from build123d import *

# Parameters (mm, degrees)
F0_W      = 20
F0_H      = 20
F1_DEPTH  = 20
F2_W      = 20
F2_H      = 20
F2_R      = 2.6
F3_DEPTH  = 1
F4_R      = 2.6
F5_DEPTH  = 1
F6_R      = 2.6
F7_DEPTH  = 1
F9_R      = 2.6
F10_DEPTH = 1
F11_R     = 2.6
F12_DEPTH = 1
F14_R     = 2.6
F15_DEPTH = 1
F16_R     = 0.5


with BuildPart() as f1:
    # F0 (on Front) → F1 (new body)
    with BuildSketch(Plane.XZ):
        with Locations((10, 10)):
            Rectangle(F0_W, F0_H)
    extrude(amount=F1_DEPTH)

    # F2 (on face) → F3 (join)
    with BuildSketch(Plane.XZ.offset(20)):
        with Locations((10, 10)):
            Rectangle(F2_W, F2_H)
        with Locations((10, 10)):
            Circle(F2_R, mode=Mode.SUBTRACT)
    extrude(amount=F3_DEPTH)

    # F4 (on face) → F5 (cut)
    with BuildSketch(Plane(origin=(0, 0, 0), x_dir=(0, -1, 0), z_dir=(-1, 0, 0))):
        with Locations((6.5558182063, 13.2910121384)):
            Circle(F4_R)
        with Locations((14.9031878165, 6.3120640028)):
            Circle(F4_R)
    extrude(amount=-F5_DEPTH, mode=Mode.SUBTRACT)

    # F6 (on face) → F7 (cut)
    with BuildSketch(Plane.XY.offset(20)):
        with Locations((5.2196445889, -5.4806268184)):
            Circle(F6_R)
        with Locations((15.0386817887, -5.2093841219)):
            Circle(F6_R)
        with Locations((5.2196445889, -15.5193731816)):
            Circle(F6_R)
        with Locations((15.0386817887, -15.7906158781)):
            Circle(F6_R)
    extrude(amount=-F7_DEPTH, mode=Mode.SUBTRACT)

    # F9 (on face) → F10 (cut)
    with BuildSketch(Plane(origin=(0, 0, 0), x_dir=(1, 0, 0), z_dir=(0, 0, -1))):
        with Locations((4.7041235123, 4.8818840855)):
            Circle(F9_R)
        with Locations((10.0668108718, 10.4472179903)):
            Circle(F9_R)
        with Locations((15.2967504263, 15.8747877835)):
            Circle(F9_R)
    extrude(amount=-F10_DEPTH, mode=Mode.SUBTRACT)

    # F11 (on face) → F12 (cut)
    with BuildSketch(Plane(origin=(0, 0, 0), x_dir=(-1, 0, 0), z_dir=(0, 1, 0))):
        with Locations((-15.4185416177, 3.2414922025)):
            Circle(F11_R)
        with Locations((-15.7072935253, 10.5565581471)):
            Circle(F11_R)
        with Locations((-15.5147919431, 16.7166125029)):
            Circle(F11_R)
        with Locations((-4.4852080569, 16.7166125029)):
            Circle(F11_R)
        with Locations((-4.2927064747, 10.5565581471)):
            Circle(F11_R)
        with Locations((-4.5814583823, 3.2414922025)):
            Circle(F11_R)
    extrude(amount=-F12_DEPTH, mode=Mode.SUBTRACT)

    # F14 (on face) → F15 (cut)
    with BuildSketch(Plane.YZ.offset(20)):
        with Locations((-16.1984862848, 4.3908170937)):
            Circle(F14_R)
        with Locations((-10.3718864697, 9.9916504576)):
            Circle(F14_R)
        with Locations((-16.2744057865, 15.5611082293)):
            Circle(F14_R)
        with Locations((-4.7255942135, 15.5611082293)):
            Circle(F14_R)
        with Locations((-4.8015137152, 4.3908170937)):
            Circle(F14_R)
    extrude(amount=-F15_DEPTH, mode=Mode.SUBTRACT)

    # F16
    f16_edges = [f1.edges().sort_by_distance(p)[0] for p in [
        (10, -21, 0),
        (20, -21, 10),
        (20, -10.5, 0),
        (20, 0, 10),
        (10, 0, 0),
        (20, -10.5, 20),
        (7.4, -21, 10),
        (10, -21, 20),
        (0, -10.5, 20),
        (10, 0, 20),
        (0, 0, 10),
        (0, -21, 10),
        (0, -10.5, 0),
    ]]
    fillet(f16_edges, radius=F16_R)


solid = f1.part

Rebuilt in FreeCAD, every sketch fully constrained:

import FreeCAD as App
import Part
import Sketcher
Q = App.Units.Quantity


def edges_at(feature, points):
    """Names of the edges that pass closest to the given points."""
    edges = feature.Shape.Edges
    near = lambda p: min(range(len(edges)), key=lambda i: edges[i].distToShape(Part.Vertex(*p))[0])
    return sorted({f"Edge{near(p) + 1}" for p in points})


def add_polygon(sketch, points):
    """Adds a closed chain of lines whose ends are joined by coincident constraints."""
    first, n = sketch.GeometryCount, len(points)
    for a, b in zip(points, points[1:] + points[:1]):
        sketch.addGeometry(Part.LineSegment(App.Vector(*a, 0), App.Vector(*b, 0)), False)
    for i in range(n):
        sketch.addConstraint(Sketcher.Constraint("Coincident", first + i, 2, first + (i + 1) % n, 1))

doc = App.newDocument("Part")
body = doc.addObject("PartDesign::Body", "Body")

sketch1 = body.newObject("Sketcher::SketchObject", "Sketch")
sketch1.AttachmentSupport = (doc.getObject("XZ_Plane"), [""])
sketch1.MapMode = "FlatFace"
add_polygon(sketch1, [(0, 20), (0, 0), (20, 0), (20, 20)])
sketch1.addConstraint(Sketcher.Constraint("Vertical", 0))
sketch1.addConstraint(Sketcher.Constraint("Horizontal", 1))
sketch1.addConstraint(Sketcher.Constraint("Vertical", 2))
sketch1.addConstraint(Sketcher.Constraint("Horizontal", 3))
sketch1.addConstraint(Sketcher.Constraint("Coincident", 0, 2, -1, 1))
sketch1.addConstraint(Sketcher.Constraint("Equal", 3, 0))
sketch1.addConstraint(Sketcher.Constraint("DistanceX", 1, 1, 1, 2, Q("20 mm")))
pad1 = body.newObject("PartDesign::Pad", "Pad")
pad1.Profile = sketch1
pad1.Length = 20

sketch2 = body.newObject("Sketcher::SketchObject", "Sketch001")
sketch2.AttachmentSupport = (doc.getObject("XZ_Plane"), [""])
sketch2.MapMode = "FlatFace"
sketch2.AttachmentOffset = App.Placement(App.Vector(0, 0, 20), App.Rotation())
add_polygon(sketch2, [(0, 20), (0, 0), (20, 0), (20, 20)])
sketch2.addGeometry(Part.Circle(App.Vector(10, 10, 0), App.Vector(0, 0, 1), 2.6), False)
sketch2.addConstraint(Sketcher.Constraint("Vertical", 0))
sketch2.addConstraint(Sketcher.Constraint("Horizontal", 1))
sketch2.addConstraint(Sketcher.Constraint("Vertical", 2))
sketch2.addConstraint(Sketcher.Constraint("Horizontal", 3))
sketch2.addConstraint(Sketcher.Constraint("Coincident", 0, 2, -1, 1))
sketch2.addConstraint(Sketcher.Constraint("Equal", 3, 0))
sketch2.addConstraint(Sketcher.Constraint("Diameter", 4, Q("5.2 mm")))
sketch2.addConstraint(Sketcher.Constraint("DistanceX", 1, 1, 1, 2, Q("20 mm")))
sketch2.addConstraint(Sketcher.Constraint("DistanceX", -1, 1, 4, 3, Q("10 mm")))
sketch2.addConstraint(Sketcher.Constraint("DistanceY", -1, 1, 4, 3, Q("10 mm")))
pad2 = body.newObject("PartDesign::Pad", "Pad001")
pad2.Profile = sketch2
pad2.Length = 1

sketch3 = body.newObject("Sketcher::SketchObject", "Sketch002")
sketch3.AttachmentSupport = (doc.getObject("YZ_Plane"), [""])
sketch3.MapMode = "FlatFace"
sketch3.addGeometry(Part.Circle(App.Vector(-6.555818, 13.291012, 0), App.Vector(0, 0, 1), 2.6), False)
sketch3.addGeometry(Part.Circle(App.Vector(-14.903188, 6.312064, 0), App.Vector(0, 0, 1), 2.6), False)
sketch3.addConstraint(Sketcher.Constraint("Equal", 0, 1))
sketch3.addConstraint(Sketcher.Constraint("Diameter", 0, Q("5.2 mm")))
sketch3.addConstraint(Sketcher.Constraint("DistanceX", 0, 3, -1, 1, Q("6.555818 mm")))
sketch3.addConstraint(Sketcher.Constraint("DistanceX", 1, 3, 0, 3, Q("8.34737 mm")))
sketch3.addConstraint(Sketcher.Constraint("DistanceY", 1, 3, 0, 3, Q("6.978948 mm")))
sketch3.addConstraint(Sketcher.Constraint("DistanceY", -1, 1, 0, 3, Q("13.291012 mm")))
pocket1 = body.newObject("PartDesign::Pocket", "Pocket")
pocket1.Profile = sketch3
pocket1.Length = 1
pocket1.Reversed = True

sketch4 = body.newObject("Sketcher::SketchObject", "Sketch003")
sketch4.AttachmentSupport = (doc.getObject("XY_Plane"), [""])
sketch4.MapMode = "FlatFace"
sketch4.AttachmentOffset = App.Placement(App.Vector(0, 0, 20), App.Rotation())
sketch4.addGeometry(Part.Circle(App.Vector(5.219645, -5.480627, 0), App.Vector(0, 0, 1), 2.6), False)
sketch4.addGeometry(Part.Circle(App.Vector(15.038682, -5.209384, 0), App.Vector(0, 0, 1), 2.6), False)
sketch4.addGeometry(Part.Circle(App.Vector(5.219645, -15.519373, 0), App.Vector(0, 0, 1), 2.6), False)
sketch4.addGeometry(Part.Circle(App.Vector(15.038682, -15.790616, 0), App.Vector(0, 0, 1), 2.6), False)
sketch4.addConstraint(Sketcher.Constraint("Equal", 0, 1))
sketch4.addConstraint(Sketcher.Constraint("Equal", 1, 2))
sketch4.addConstraint(Sketcher.Constraint("Equal", 2, 3))
sketch4.addConstraint(Sketcher.Constraint("Vertical", 0, 3, 2, 3))
sketch4.addConstraint(Sketcher.Constraint("Vertical", 1, 3, 3, 3))
sketch4.addConstraint(Sketcher.Constraint("Diameter", 0, Q("5.2 mm")))
sketch4.addConstraint(Sketcher.Constraint("DistanceX", -1, 1, 1, 3, Q("15.038682 mm")))
sketch4.addConstraint(Sketcher.Constraint("DistanceY", 2, 3, 1, 3, Q("10.309989 mm")))
sketch4.addConstraint(Sketcher.Constraint("DistanceY", 3, 3, 1, 3, Q("10.581232 mm")))
sketch4.addConstraint(Sketcher.Constraint("DistanceY", 3, 3, 0, 3, Q("10.309989 mm")))
sketch4.addConstraint(Sketcher.Constraint("DistanceX", -1, 1, 0, 3, Q("5.219645 mm")))
sketch4.addConstraint(Sketcher.Constraint("DistanceY", 0, 3, -1, 1, Q("5.480627 mm")))
pocket2 = body.newObject("PartDesign::Pocket", "Pocket001")
pocket2.Profile = sketch4
pocket2.Length = 1

sketch5 = body.newObject("Sketcher::SketchObject", "Sketch004")
sketch5.AttachmentSupport = (doc.getObject("XY_Plane"), [""])
sketch5.MapMode = "FlatFace"
sketch5.addGeometry(Part.Circle(App.Vector(4.704124, -4.881884, 0), App.Vector(0, 0, 1), 2.6), False)
sketch5.addGeometry(Part.Circle(App.Vector(10.066811, -10.447218, 0), App.Vector(0, 0, 1), 2.6), False)
sketch5.addGeometry(Part.Circle(App.Vector(15.29675, -15.874788, 0), App.Vector(0, 0, 1), 2.6), False)
sketch5.addConstraint(Sketcher.Constraint("Equal", 0, 1))
sketch5.addConstraint(Sketcher.Constraint("Equal", 1, 2))
sketch5.addConstraint(Sketcher.Constraint("Diameter", 0, Q("5.2 mm")))
sketch5.addConstraint(Sketcher.Constraint("DistanceX", -1, 1, 1, 3, Q("10.066811 mm")))
sketch5.addConstraint(Sketcher.Constraint("DistanceX", -1, 1, 2, 3, Q("15.29675 mm")))
sketch5.addConstraint(Sketcher.Constraint("DistanceY", 2, 3, 1, 3, Q("5.42757 mm")))
sketch5.addConstraint(Sketcher.Constraint("DistanceX", -1, 1, 0, 3, Q("4.704124 mm")))
sketch5.addConstraint(Sketcher.Constraint("DistanceY", 0, 3, -1, 1, Q("4.881884 mm")))
sketch5.addConstraint(Sketcher.Constraint("DistanceY", 1, 3, -1, 1, Q("10.447218 mm")))
pocket3 = body.newObject("PartDesign::Pocket", "Pocket002")
pocket3.Profile = sketch5
pocket3.Length = 1
pocket3.Reversed = True

sketch6 = body.newObject("Sketcher::SketchObject", "Sketch005")
sketch6.AttachmentSupport = (doc.getObject("XZ_Plane"), [""])
sketch6.MapMode = "FlatFace"
sketch6.addGeometry(Part.Circle(App.Vector(15.418542, 3.241492, 0), App.Vector(0, 0, 1), 2.6), False)
sketch6.addGeometry(Part.Circle(App.Vector(15.707294, 10.556558, 0), App.Vector(0, 0, 1), 2.6), False)
sketch6.addGeometry(Part.Circle(App.Vector(15.514792, 16.716613, 0), App.Vector(0, 0, 1), 2.6), False)
sketch6.addGeometry(Part.Circle(App.Vector(4.485208, 16.716613, 0), App.Vector(0, 0, 1), 2.6), False)
sketch6.addGeometry(Part.Circle(App.Vector(4.292706, 10.556558, 0), App.Vector(0, 0, 1), 2.6), False)
sketch6.addGeometry(Part.Circle(App.Vector(4.581458, 3.241492, 0), App.Vector(0, 0, 1), 2.6), False)
sketch6.addConstraint(Sketcher.Constraint("Equal", 0, 1))
sketch6.addConstraint(Sketcher.Constraint("Equal", 1, 2))
sketch6.addConstraint(Sketcher.Constraint("Equal", 2, 3))
sketch6.addConstraint(Sketcher.Constraint("Equal", 3, 4))
sketch6.addConstraint(Sketcher.Constraint("Equal", 4, 5))
sketch6.addConstraint(Sketcher.Constraint("Horizontal", 2, 3, 3, 3))
sketch6.addConstraint(Sketcher.Constraint("Horizontal", 1, 3, 4, 3))
sketch6.addConstraint(Sketcher.Constraint("Horizontal", 0, 3, 5, 3))
sketch6.addConstraint(Sketcher.Constraint("Diameter", 0, Q("5.2 mm")))
sketch6.addConstraint(Sketcher.Constraint("DistanceX", 2, 3, 1, 3, Q("0.192502 mm")))
sketch6.addConstraint(Sketcher.Constraint("DistanceX", 4, 3, 3, 3, Q("0.192502 mm")))
sketch6.addConstraint(Sketcher.Constraint("DistanceX", -1, 1, 0, 3, Q("15.418542 mm")))
sketch6.addConstraint(Sketcher.Constraint("DistanceY", -1, 1, 1, 3, Q("10.556558 mm")))
sketch6.addConstraint(Sketcher.Constraint("DistanceX", -1, 1, 2, 3, Q("15.514792 mm")))
sketch6.addConstraint(Sketcher.Constraint("DistanceX", -1, 1, 3, 3, Q("4.485208 mm")))
sketch6.addConstraint(Sketcher.Constraint("DistanceX", -1, 1, 5, 3, Q("4.581458 mm")))
sketch6.addConstraint(Sketcher.Constraint("DistanceY", 0, 3, 2, 3, Q("13.47512 mm")))
sketch6.addConstraint(Sketcher.Constraint("DistanceY", -1, 1, 0, 3, Q("3.241492 mm")))
pocket4 = body.newObject("PartDesign::Pocket", "Pocket003")
pocket4.Profile = sketch6
pocket4.Length = 1
pocket4.Reversed = True

sketch7 = body.newObject("Sketcher::SketchObject", "Sketch006")
sketch7.AttachmentSupport = (doc.getObject("YZ_Plane"), [""])
sketch7.MapMode = "FlatFace"
sketch7.AttachmentOffset = App.Placement(App.Vector(0, 0, 20), App.Rotation())
sketch7.addGeometry(Part.Circle(App.Vector(-16.198486, 4.390817, 0), App.Vector(0, 0, 1), 2.6), False)
sketch7.addGeometry(Part.Circle(App.Vector(-10.371886, 9.99165, 0), App.Vector(0, 0, 1), 2.6), False)
sketch7.addGeometry(Part.Circle(App.Vector(-16.274406, 15.561108, 0), App.Vector(0, 0, 1), 2.6), False)
sketch7.addGeometry(Part.Circle(App.Vector(-4.725594, 15.561108, 0), App.Vector(0, 0, 1), 2.6), False)
sketch7.addGeometry(Part.Circle(App.Vector(-4.801514, 4.390817, 0), App.Vector(0, 0, 1), 2.6), False)
sketch7.addConstraint(Sketcher.Constraint("Equal", 0, 1))
sketch7.addConstraint(Sketcher.Constraint("Equal", 1, 2))
sketch7.addConstraint(Sketcher.Constraint("Equal", 2, 3))
sketch7.addConstraint(Sketcher.Constraint("Equal", 3, 4))
sketch7.addConstraint(Sketcher.Constraint("Horizontal", 2, 3, 3, 3))
sketch7.addConstraint(Sketcher.Constraint("Horizontal", 0, 3, 4, 3))
sketch7.addConstraint(Sketcher.Constraint("Diameter", 0, Q("5.2 mm")))
sketch7.addConstraint(Sketcher.Constraint("DistanceX", 0, 3, 1, 3, Q("5.8266 mm")))
sketch7.addConstraint(Sketcher.Constraint("DistanceY", -1, 1, 1, 3, Q("9.99165 mm")))
sketch7.addConstraint(Sketcher.Constraint("DistanceY", -1, 1, 2, 3, Q("15.561108 mm")))
sketch7.addConstraint(Sketcher.Constraint("DistanceX", 2, 3, 1, 3, Q("5.902519 mm")))
sketch7.addConstraint(Sketcher.Constraint("DistanceY", 0, 3, 2, 3, Q("11.170291 mm")))
sketch7.addConstraint(Sketcher.Constraint("DistanceX", 2, 3, 3, 3, Q("11.548812 mm")))
sketch7.addConstraint(Sketcher.Constraint("DistanceX", 4, 3, 3, 3, Q("0.07592 mm")))
sketch7.addConstraint(Sketcher.Constraint("DistanceX", 0, 3, -1, 1, Q("16.198486 mm")))
pocket5 = body.newObject("PartDesign::Pocket", "Pocket004")
pocket5.Profile = sketch7
pocket5.Length = 1
doc.recompute()

fillet = body.newObject("PartDesign::Fillet", "Fillet")
fillet.Base = (pocket5, edges_at(pocket5, [
    (10, -21, 0),
    (20, -21, 10),
    (20, -10.5, 0),
    (20, 0, 10),
    (10, 0, 0),
    (20, -10.5, 20),
    (7.4, -21, 10),
    (10, -21, 20),
    (0, -10.5, 20),
    (10, 0, 20),
    (0, 0, 10),
    (0, -21, 10),
    (0, -10.5, 0),
]))
fillet.Radius = 0.5

doc.recompute()
